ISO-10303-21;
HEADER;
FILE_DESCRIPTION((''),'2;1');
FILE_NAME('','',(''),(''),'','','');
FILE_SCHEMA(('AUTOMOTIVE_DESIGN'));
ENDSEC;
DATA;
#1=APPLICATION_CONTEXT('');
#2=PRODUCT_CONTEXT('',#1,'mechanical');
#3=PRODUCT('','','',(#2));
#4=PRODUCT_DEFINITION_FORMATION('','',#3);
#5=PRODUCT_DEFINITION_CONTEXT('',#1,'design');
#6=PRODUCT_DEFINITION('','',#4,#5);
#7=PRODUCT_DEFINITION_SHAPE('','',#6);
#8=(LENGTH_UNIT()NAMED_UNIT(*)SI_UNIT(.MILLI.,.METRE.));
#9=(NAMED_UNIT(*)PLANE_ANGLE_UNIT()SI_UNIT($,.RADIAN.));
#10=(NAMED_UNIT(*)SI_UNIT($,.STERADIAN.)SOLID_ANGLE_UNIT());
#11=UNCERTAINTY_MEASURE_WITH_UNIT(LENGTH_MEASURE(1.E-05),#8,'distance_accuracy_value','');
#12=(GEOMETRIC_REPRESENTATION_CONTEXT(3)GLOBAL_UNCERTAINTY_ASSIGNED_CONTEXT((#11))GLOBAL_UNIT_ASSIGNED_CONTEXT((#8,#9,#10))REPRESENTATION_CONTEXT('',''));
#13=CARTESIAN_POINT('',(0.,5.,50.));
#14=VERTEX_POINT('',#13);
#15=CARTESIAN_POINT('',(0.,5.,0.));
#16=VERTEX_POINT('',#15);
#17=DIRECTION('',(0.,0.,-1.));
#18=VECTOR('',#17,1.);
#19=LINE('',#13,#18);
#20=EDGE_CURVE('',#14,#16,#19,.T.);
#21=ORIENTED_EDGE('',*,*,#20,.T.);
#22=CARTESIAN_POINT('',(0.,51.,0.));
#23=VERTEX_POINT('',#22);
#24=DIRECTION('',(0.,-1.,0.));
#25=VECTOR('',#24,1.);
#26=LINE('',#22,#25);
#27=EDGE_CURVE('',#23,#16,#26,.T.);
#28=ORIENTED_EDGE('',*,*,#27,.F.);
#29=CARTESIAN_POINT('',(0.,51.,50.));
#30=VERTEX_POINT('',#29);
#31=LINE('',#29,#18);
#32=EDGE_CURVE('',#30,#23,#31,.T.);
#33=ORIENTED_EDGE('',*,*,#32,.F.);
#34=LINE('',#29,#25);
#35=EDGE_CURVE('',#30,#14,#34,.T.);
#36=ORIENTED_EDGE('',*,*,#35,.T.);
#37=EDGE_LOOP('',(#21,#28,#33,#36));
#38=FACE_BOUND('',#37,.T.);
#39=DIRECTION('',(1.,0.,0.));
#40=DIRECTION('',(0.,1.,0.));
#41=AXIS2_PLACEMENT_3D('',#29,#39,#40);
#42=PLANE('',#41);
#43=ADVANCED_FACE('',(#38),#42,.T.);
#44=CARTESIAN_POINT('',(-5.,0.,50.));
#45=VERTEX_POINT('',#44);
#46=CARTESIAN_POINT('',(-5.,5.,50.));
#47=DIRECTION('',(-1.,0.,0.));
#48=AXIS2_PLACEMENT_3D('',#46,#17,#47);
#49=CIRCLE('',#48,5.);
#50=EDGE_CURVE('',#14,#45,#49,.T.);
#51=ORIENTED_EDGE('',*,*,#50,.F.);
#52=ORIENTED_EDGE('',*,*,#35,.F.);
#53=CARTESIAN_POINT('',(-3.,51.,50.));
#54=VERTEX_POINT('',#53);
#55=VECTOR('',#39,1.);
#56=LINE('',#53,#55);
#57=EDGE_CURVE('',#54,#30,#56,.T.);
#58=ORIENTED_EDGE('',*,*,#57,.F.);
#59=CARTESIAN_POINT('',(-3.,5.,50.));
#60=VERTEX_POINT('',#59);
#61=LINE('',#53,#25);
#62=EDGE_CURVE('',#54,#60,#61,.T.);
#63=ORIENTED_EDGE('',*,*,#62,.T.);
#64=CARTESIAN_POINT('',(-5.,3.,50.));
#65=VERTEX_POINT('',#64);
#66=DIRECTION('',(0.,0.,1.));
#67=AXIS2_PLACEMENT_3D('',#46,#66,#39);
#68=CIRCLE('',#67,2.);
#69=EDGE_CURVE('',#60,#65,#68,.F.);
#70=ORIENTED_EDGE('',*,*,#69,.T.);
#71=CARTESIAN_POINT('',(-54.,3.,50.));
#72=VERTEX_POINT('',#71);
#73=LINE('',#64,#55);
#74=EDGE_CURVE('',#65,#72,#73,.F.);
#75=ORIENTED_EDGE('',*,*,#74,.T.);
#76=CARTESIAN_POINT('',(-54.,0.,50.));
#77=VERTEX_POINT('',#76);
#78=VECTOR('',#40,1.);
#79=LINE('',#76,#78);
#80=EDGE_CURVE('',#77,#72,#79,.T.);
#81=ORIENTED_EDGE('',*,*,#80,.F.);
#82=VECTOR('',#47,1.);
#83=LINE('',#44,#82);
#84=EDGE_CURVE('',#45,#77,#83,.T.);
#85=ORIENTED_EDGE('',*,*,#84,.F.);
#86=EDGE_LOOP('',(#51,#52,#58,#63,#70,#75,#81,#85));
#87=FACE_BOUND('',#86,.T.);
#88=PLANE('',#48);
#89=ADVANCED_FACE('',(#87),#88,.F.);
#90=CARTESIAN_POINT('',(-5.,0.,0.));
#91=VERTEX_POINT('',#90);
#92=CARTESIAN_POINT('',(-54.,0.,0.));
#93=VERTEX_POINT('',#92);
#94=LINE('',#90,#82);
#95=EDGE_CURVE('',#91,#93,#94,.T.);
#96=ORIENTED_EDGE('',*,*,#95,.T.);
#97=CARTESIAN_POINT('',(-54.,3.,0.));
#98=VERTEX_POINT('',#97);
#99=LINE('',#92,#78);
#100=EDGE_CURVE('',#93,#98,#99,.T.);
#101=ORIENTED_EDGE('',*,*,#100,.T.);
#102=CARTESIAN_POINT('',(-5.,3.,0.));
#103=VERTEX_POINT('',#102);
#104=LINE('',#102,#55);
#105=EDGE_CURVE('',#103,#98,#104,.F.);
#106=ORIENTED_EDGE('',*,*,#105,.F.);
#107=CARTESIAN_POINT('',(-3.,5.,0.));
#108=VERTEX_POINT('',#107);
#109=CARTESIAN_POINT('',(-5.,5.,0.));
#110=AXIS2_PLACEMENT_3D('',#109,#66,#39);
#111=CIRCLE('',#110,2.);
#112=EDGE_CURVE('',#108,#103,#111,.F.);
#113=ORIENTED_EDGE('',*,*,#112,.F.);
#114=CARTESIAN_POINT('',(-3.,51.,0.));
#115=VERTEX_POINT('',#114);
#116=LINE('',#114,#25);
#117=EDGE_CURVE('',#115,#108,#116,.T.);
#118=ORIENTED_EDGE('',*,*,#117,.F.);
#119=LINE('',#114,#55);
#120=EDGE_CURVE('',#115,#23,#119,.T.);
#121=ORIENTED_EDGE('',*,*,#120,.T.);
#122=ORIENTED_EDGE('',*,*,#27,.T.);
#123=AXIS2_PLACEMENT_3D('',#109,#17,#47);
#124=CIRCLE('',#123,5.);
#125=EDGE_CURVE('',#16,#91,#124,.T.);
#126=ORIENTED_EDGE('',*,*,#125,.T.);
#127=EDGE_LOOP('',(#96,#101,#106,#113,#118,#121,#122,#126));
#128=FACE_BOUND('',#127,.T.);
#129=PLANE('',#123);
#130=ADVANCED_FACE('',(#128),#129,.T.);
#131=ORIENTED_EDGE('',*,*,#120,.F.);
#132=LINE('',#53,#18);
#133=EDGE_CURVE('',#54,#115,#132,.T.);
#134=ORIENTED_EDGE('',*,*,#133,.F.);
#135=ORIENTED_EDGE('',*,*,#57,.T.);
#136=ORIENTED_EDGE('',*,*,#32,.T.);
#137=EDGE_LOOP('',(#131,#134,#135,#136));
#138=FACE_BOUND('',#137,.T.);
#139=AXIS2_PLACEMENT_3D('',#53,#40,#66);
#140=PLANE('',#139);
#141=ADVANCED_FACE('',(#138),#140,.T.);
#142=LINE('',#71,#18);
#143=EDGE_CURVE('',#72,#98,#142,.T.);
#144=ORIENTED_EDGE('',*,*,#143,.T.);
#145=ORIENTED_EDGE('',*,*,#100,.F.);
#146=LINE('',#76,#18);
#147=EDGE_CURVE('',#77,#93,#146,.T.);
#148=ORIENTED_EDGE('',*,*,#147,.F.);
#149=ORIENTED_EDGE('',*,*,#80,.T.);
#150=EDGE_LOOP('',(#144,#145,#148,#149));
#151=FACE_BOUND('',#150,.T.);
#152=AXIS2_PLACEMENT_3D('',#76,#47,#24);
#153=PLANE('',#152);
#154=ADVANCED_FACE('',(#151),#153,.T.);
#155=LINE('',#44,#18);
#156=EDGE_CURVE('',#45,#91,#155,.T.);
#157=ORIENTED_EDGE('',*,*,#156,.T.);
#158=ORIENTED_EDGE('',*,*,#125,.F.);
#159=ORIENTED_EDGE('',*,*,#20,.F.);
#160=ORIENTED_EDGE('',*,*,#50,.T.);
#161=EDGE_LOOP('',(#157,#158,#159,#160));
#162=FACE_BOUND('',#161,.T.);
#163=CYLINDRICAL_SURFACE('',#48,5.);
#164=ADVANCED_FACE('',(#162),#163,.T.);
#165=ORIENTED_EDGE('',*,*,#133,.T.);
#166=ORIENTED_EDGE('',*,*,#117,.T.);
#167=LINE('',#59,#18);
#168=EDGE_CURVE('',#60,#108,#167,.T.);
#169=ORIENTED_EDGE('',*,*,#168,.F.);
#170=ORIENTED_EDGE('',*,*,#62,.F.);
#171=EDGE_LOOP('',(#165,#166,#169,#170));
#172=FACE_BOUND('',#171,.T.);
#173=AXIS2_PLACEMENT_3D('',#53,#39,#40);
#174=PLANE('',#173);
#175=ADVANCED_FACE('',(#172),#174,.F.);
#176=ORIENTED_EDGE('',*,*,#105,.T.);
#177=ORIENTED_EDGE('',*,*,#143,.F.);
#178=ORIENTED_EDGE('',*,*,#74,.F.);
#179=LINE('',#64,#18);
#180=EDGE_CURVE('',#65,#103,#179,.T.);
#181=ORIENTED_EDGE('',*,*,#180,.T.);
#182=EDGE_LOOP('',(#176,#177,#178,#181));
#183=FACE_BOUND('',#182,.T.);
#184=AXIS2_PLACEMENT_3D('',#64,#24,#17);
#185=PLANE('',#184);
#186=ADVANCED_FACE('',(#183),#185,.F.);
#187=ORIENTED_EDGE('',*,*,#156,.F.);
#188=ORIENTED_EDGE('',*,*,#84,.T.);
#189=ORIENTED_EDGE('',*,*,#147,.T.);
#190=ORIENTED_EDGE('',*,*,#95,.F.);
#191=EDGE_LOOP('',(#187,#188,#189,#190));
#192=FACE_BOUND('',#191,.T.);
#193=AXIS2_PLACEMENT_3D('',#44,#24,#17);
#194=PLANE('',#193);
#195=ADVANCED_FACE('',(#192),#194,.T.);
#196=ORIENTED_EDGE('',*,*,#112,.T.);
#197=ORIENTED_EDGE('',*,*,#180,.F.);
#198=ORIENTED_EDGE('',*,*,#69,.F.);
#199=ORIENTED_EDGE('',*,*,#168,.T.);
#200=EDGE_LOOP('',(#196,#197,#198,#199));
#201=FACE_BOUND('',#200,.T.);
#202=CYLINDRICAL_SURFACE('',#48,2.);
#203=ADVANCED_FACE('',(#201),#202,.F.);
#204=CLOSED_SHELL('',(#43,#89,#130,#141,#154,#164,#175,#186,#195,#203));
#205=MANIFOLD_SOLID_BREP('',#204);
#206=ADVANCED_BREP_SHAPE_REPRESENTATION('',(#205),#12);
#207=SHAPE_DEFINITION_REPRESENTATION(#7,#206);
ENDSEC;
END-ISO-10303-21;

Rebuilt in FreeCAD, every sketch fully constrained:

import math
import FreeCAD as App
import Part
import Sketcher
from FreeCAD import Vector
Q = App.Units.Quantity

doc = App.newDocument("Part")
body = doc.addObject("PartDesign::Body", "Body")

sketch1 = body.newObject("Sketcher::SketchObject", "Sketch")
sketch1.AttachmentSupport = (doc.getObject("XY_Plane"), [""])
sketch1.MapMode = "FlatFace"
sketch1.addGeometry([
    Part.LineSegment(Vector(0, 5, 0), Vector(0, 51, 0)),
    Part.LineSegment(Vector(0, 51, 0), Vector(-3, 51, 0)),
    Part.LineSegment(Vector(-3, 51, 0), Vector(-3, 5, 0)),
    Part.ArcOfCircle(Part.Circle(Vector(-5, 5, 0), Vector(0, 0, 1), 2), math.radians(-90), math.radians(0)),
    Part.LineSegment(Vector(-5, 3, 0), Vector(-54, 3, 0)),
    Part.LineSegment(Vector(-54, 3, 0), Vector(-54, 0, 0)),
    Part.LineSegment(Vector(-54, 0, 0), Vector(-5, 0, 0)),
    Part.ArcOfCircle(Part.Circle(Vector(-5, 5, 0), Vector(0, 0, 1), 5), math.radians(-90), math.radians(0)),
], False)
sketch1.addConstraint([
    Sketcher.Constraint("Coincident", 0, 2, 1, 1),
    Sketcher.Constraint("Coincident", 1, 2, 2, 1),
    Sketcher.Constraint("Tangent", 2, 2, 3, 2),
    Sketcher.Constraint("Tangent", 3, 1, 4, 1),
    Sketcher.Constraint("Coincident", 4, 2, 5, 1),
    Sketcher.Constraint("Coincident", 5, 2, 6, 1),
    Sketcher.Constraint("Tangent", 6, 2, 7, 1),
    Sketcher.Constraint("Tangent", 7, 2, 0, 1),
    Sketcher.Constraint("Vertical", 0),
    Sketcher.Constraint("Horizontal", 1),
    Sketcher.Constraint("Vertical", 2),
    Sketcher.Constraint("Horizontal", 4),
    Sketcher.Constraint("Vertical", 5),
    Sketcher.Constraint("Horizontal", 6),
    Sketcher.Constraint("Coincident", 7, 3, 3, 3),
    Sketcher.Constraint("PointOnObject", 0, 2, -2),
    Sketcher.Constraint("PointOnObject", 5, 2, -1),
    Sketcher.Constraint("Radius", 3, Q("2 mm")),
    Sketcher.Constraint("Radius", 7, Q("5 mm")),
    Sketcher.Constraint("DistanceX", 4, 2, 4, 1, Q("49 mm")),
    Sketcher.Constraint("DistanceY", 0, 1, 0, 2, Q("46 mm")),
])
pad1 = body.newObject("PartDesign::Pad", "Pad")
pad1.Profile = sketch1
pad1.Length = 50

doc.recompute()
